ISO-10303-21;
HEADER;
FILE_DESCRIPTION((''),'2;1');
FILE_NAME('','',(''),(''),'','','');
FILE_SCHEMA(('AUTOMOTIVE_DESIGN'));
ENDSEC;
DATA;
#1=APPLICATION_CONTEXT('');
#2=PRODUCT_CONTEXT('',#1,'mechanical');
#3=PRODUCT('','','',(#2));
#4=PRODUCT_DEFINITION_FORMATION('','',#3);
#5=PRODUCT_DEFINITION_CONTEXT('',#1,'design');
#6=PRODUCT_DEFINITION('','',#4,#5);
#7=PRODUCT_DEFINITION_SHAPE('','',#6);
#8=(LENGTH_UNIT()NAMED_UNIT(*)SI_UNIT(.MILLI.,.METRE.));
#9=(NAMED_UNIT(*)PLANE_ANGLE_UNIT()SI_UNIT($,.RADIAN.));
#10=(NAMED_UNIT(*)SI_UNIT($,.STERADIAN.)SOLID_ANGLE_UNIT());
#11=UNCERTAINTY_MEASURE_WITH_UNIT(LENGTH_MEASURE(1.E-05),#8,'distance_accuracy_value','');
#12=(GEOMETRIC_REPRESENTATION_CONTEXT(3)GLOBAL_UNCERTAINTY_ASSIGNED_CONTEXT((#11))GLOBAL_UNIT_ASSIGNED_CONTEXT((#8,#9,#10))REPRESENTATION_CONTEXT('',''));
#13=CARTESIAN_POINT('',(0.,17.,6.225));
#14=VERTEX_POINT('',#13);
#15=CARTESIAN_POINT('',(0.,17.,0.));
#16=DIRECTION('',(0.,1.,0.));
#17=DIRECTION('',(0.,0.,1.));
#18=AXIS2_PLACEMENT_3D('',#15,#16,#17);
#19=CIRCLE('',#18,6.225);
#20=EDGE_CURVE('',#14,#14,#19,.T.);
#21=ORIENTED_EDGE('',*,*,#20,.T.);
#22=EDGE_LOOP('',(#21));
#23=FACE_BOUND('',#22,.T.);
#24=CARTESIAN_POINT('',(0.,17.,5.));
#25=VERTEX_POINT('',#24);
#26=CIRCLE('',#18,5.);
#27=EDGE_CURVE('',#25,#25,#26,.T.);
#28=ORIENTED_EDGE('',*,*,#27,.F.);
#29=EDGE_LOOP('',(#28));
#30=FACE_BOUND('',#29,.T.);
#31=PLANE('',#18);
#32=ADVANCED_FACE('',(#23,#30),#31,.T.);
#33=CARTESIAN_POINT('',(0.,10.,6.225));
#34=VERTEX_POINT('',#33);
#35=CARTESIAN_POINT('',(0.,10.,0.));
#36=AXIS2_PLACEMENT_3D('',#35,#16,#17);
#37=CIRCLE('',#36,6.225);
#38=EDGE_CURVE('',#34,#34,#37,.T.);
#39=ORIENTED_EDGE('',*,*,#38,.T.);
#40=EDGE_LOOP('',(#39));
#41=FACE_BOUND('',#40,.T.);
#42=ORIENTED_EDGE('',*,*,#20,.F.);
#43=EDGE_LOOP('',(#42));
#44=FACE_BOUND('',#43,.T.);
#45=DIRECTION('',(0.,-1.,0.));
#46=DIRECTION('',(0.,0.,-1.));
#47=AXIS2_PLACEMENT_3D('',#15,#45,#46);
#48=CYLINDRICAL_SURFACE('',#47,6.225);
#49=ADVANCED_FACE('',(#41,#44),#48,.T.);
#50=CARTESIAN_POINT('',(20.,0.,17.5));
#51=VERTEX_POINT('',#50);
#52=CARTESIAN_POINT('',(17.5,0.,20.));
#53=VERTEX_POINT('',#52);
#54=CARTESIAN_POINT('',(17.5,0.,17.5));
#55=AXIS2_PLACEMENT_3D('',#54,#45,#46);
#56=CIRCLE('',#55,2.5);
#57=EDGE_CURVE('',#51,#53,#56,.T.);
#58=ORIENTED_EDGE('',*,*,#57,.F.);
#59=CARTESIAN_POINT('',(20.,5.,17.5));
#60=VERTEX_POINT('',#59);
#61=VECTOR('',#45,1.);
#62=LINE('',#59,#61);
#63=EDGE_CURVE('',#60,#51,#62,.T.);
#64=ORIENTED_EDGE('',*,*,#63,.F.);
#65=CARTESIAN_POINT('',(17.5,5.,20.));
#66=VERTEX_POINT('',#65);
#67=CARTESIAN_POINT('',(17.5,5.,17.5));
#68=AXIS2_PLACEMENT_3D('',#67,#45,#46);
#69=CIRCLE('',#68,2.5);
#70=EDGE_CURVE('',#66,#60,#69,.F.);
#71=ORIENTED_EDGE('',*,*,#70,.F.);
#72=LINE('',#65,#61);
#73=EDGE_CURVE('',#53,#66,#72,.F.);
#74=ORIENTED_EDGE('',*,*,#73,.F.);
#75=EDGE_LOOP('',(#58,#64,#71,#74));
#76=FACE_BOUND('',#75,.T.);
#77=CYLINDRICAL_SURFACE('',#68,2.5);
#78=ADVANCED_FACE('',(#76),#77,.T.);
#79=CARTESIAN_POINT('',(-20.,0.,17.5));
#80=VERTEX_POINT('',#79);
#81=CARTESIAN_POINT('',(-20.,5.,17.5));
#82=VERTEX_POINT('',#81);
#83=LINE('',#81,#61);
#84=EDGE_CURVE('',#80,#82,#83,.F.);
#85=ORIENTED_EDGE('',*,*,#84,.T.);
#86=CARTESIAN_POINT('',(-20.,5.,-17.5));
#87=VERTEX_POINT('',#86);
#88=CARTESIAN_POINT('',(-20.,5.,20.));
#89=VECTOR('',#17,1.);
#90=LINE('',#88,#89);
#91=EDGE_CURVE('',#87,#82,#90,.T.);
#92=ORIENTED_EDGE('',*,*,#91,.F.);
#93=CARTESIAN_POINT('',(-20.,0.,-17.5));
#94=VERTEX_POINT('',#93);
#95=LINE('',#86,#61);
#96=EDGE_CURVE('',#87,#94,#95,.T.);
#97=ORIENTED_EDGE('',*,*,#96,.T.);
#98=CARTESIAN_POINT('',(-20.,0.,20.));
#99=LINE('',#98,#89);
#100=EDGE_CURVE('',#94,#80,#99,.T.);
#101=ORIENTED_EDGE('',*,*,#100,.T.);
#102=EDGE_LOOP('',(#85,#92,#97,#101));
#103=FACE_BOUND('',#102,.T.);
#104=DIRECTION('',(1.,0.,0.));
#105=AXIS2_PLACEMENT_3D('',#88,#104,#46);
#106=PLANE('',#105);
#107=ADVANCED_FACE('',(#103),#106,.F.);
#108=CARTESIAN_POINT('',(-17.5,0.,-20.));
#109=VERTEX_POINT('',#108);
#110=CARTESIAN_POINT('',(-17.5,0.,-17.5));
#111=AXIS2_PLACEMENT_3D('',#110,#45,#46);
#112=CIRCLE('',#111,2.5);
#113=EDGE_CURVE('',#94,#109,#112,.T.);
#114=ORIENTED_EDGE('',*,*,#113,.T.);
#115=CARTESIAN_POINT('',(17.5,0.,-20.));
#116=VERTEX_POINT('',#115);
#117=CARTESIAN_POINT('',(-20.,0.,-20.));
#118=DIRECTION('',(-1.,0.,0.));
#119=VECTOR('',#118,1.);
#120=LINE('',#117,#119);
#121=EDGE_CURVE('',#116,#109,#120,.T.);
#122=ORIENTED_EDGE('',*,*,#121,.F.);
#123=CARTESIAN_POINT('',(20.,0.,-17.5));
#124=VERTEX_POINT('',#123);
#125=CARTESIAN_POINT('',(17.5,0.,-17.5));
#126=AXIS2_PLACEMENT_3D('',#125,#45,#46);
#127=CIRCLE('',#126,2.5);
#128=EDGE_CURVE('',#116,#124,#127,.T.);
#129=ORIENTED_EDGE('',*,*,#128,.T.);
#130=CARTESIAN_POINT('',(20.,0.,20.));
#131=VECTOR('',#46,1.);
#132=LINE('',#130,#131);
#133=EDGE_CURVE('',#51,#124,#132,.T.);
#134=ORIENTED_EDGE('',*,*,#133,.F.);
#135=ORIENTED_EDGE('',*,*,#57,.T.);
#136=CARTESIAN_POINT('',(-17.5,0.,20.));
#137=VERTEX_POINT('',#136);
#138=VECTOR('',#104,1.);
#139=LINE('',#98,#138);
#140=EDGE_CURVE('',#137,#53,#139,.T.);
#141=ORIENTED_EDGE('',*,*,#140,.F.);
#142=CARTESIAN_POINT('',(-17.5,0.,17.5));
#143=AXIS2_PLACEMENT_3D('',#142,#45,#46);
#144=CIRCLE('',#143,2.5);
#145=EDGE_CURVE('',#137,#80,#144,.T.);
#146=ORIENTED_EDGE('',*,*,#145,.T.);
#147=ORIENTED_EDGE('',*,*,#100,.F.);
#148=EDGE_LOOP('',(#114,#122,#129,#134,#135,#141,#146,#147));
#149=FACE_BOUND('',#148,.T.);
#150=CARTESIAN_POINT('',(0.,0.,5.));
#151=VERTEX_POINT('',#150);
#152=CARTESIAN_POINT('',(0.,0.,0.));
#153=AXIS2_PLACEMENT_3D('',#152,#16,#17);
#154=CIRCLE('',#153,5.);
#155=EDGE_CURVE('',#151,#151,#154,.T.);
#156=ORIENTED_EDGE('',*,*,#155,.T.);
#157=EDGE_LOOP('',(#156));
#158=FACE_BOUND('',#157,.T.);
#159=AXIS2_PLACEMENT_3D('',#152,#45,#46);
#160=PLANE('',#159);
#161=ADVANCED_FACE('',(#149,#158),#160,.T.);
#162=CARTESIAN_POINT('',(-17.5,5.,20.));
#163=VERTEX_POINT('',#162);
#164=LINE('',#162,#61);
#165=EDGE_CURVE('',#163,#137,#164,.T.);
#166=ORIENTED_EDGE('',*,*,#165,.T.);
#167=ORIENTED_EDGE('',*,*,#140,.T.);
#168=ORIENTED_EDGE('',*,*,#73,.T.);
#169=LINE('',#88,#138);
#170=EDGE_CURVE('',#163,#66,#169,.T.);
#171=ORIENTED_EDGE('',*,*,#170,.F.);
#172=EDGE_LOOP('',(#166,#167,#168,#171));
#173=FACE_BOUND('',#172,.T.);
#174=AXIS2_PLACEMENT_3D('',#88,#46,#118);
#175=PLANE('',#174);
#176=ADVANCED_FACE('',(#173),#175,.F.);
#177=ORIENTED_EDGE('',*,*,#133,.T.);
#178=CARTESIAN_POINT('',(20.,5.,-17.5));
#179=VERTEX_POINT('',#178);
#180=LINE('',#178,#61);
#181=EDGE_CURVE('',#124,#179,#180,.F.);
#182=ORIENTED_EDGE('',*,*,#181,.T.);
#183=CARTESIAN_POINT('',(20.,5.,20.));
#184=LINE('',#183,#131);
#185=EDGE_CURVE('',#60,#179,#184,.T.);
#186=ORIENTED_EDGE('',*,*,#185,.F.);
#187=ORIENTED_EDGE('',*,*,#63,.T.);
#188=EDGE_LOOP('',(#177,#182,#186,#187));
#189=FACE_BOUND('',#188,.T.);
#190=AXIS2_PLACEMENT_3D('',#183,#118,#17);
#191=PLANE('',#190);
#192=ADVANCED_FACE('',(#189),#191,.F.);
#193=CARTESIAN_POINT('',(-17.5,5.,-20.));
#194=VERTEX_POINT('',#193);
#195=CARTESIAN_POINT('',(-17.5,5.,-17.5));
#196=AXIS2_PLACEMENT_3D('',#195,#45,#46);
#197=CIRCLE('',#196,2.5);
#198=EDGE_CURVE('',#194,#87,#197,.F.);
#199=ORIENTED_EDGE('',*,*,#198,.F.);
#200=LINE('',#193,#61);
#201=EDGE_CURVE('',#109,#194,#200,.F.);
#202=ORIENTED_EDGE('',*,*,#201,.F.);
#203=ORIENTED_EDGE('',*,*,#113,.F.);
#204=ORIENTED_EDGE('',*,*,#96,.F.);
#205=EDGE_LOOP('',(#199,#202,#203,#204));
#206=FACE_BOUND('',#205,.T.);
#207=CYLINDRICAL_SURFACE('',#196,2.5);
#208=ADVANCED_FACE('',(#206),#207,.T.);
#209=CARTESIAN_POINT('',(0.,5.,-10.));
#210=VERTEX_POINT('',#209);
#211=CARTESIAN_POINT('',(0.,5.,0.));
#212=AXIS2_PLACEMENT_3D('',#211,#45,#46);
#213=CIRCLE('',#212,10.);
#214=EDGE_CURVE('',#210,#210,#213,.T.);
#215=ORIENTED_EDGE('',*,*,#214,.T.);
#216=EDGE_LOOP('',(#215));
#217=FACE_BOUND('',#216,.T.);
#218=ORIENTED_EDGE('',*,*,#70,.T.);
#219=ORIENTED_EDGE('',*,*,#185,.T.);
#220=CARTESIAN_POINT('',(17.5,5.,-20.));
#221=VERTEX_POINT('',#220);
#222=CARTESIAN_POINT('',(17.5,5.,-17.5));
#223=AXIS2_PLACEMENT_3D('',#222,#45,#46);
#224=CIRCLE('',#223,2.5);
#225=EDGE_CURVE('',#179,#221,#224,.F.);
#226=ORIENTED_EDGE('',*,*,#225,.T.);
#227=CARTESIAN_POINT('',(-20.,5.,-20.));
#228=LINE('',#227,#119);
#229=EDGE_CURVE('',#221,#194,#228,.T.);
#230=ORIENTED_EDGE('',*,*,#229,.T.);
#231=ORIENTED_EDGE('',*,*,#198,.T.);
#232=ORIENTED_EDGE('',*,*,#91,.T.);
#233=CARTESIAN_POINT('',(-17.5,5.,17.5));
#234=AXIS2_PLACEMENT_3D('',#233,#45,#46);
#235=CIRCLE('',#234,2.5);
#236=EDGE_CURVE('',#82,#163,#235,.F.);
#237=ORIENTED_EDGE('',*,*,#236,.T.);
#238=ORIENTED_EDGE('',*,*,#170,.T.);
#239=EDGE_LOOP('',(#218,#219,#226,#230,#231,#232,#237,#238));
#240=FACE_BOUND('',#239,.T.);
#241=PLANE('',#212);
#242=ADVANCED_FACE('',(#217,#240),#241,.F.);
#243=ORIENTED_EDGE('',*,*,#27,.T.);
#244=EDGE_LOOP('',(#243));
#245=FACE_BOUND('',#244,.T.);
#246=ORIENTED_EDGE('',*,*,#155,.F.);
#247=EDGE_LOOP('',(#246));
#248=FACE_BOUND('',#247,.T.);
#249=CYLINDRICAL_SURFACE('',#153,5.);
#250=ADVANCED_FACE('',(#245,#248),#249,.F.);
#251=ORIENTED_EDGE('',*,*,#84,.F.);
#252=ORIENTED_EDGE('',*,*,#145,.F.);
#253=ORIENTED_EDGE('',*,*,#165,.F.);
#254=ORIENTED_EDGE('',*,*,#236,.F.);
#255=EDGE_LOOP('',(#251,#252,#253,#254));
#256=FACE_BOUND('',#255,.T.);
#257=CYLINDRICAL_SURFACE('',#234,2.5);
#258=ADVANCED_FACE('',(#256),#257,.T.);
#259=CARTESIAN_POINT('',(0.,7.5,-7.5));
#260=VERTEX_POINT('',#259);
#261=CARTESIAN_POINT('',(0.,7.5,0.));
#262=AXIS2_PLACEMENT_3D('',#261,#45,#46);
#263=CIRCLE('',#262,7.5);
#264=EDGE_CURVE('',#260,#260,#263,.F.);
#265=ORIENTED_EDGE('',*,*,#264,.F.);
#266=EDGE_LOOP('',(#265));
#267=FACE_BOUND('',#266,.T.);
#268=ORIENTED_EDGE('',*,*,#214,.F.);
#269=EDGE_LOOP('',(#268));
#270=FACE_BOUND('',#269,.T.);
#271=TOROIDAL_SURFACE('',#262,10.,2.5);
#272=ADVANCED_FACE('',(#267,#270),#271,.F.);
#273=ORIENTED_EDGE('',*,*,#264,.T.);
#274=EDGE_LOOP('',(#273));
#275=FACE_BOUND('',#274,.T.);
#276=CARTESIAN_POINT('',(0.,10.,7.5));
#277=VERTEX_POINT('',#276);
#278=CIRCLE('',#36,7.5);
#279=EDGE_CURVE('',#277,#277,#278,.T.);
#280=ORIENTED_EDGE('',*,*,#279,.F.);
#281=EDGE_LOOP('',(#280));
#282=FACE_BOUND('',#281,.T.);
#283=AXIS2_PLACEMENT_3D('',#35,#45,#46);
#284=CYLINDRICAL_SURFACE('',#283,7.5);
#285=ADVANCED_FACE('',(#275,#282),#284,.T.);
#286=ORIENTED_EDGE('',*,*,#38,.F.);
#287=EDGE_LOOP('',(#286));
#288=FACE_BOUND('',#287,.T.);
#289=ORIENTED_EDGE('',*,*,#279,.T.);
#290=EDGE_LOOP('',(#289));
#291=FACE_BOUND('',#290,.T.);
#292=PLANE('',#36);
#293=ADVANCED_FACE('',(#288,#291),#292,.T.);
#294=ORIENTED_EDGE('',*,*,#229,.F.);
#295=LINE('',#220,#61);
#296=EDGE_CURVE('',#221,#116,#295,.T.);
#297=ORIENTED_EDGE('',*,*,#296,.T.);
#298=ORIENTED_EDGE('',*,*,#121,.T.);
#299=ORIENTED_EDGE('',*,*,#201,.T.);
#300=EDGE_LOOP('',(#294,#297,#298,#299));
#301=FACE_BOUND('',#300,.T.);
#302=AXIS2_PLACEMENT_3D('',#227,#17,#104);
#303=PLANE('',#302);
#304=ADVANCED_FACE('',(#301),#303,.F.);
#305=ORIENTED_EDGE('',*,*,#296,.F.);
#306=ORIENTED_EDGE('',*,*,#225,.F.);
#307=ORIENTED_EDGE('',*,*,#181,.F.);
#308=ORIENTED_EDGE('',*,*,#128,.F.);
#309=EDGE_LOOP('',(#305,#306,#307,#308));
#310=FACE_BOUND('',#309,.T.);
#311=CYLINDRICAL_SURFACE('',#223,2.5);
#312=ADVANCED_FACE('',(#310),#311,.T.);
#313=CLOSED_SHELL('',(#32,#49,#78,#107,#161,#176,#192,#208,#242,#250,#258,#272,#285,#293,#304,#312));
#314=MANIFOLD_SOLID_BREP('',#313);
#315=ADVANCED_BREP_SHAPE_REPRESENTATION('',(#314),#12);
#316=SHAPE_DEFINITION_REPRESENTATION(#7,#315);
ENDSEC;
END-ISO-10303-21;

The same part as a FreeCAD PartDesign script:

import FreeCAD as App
import Part
import Sketcher

V = App.Vector


def edges_at(feature, points):
    """Names of the edges that pass closest to the given points."""
    edges = feature.Shape.Edges
    near = lambda p: min(range(len(edges)), key=lambda i: edges[i].distToShape(Part.Vertex(*p))[0])
    return sorted({f"Edge{near(p) + 1}" for p in points})


def add_polygon(sketch, points):
    """Adds a closed chain of lines whose ends are joined by coincident constraints."""
    first, n = sketch.GeometryCount, len(points)
    for a, b in zip(points, points[1:] + points[:1]):
        sketch.addGeometry(Part.LineSegment(App.Vector(*a, 0), App.Vector(*b, 0)), False)
    for i in range(n):
        sketch.addConstraint(Sketcher.Constraint("Coincident", first + i, 2, first + (i + 1) % n, 1))

doc = App.newDocument("Part")
params = doc.addObject("Spreadsheet::Sheet", "Params")
for row, (alias, value) in enumerate([
    ("sketch1_width", "40 mm"),
    ("pad1_length", "5 mm"),
    ("sketch2_diameter", "15 mm"),
    ("pad2_length", "5 mm"),
    ("sketch3_diameter", "12.45 mm"),
    ("pad3_length", "7 mm"),
    ("fillet_radius", "2.5 mm"),
    ("sketch4_diameter", "10 mm"),
    ("pocket1_length", "17 mm"),
], start=1):
    params.set(f"A{row}", alias)
    params.set(f"B{row}", "=" + value)
    params.setAlias(f"B{row}", alias)

body = doc.addObject("PartDesign::Body", "Body")

# Sketch on XZ plane
sketch1 = body.newObject("Sketcher::SketchObject", "Sketch")
sketch1.AttachmentSupport = (doc.getObject("XZ_Plane"), [""])
sketch1.MapMode = "FlatFace"
add_polygon(sketch1, [(-20, -20), (-20, 20), (20, 20), (20, -20)])  # lines 0-3
sketch1.addConstraint([
    Sketcher.Constraint("Vertical", 0),
    Sketcher.Constraint("Horizontal", 1),
    Sketcher.Constraint("Vertical", 2),
    Sketcher.Constraint("Horizontal", 3),
    Sketcher.Constraint("Symmetric", 0, 2, 2, 2, -1, 1),
    Sketcher.Constraint("Equal", 3, 0),
    Sketcher.Constraint("DistanceX", 1, 1, 1, 2, 40.0),
])
sketch1.setExpression("Constraints[10]", "Params.sketch1_width")
pad1 = body.newObject("PartDesign::Pad", "Pad")
pad1.Profile = sketch1
pad1.setExpression("Length", "Params.pad1_length")
pad1.Reversed = True

# Sketch on XZ plane
sketch2 = body.newObject("Sketcher::SketchObject", "Sketch001")
sketch2.AttachmentSupport = (doc.getObject("XZ_Plane"), [""])
sketch2.MapMode = "FlatFace"
sketch2.AttachmentOffset = App.Placement(V(0, 0, -5), App.Rotation())
sketch2.addGeometry(Part.Circle(V(0, 0, 0), V(0, 0, 1), 8), False)
sketch2.addConstraint([
    Sketcher.Constraint("Coincident", 0, 3, -1, 1),
    Sketcher.Constraint("Diameter", 0, 15.0),
])
sketch2.setExpression("Constraints[1]", "Params.sketch2_diameter")
pad2 = body.newObject("PartDesign::Pad", "Pad001")
pad2.Profile = sketch2
pad2.setExpression("Length", "Params.pad2_length")
pad2.Reversed = True

# Sketch on XZ plane
sketch3 = body.newObject("Sketcher::SketchObject", "Sketch002")
sketch3.AttachmentSupport = (doc.getObject("XZ_Plane"), [""])
sketch3.MapMode = "FlatFace"
sketch3.AttachmentOffset = App.Placement(V(0, 0, -10), App.Rotation())
sketch3.addGeometry(Part.Circle(V(0, 0, 0), V(0, 0, 1), 6), False)
sketch3.addConstraint([
    Sketcher.Constraint("Coincident", 0, 3, -1, 1),
    Sketcher.Constraint("Diameter", 0, 12.45),
])
sketch3.setExpression("Constraints[1]", "Params.sketch3_diameter")
pad3 = body.newObject("PartDesign::Pad", "Pad002")
pad3.Profile = sketch3
pad3.setExpression("Length", "Params.pad3_length")
pad3.Reversed = True
doc.recompute()

fillet = body.newObject("PartDesign::Fillet", "Fillet")
fillet.Base = (pad3, edges_at(pad3, [
    (0, 5, -7.5),
    (20, 2.5, 20),
    (-20, 2.5, 20),
    (-20, 2.5, -20),
    (20, 2.5, -20),
]))
fillet.setExpression("Radius", "Params.fillet_radius")

# Sketch on XZ plane
sketch4 = body.newObject("Sketcher::SketchObject", "Sketch003")
sketch4.AttachmentSupport = (doc.getObject("XZ_Plane"), [""])
sketch4.MapMode = "FlatFace"
sketch4.AttachmentOffset = App.Placement(V(0, 0, -17), App.Rotation())
sketch4.addGeometry(Part.Circle(V(0, 0, 0), V(0, 0, 1), 5), False)
sketch4.addConstraint([
    Sketcher.Constraint("Coincident", 0, 3, -1, 1),
    Sketcher.Constraint("Diameter", 0, 10.0),
])
sketch4.setExpression("Constraints[1]", "Params.sketch4_diameter")
pocket1 = body.newObject("PartDesign::Pocket", "Pocket")
pocket1.Profile = sketch4
pocket1.setExpression("Length", "Params.pocket1_length")
pocket1.Reversed = True

doc.recompute()
